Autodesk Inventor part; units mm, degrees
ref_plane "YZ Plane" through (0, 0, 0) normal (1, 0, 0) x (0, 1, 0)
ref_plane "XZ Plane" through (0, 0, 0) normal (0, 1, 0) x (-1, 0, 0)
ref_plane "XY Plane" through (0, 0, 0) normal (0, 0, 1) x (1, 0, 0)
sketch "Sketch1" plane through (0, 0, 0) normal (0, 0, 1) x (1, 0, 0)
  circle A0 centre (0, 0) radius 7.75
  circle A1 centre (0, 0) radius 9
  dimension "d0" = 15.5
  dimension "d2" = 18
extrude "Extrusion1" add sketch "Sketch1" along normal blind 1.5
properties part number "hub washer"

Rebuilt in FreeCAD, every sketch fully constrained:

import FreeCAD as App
import Part
import Sketcher
Q = App.Units.Quantity

doc = App.newDocument("Part")
params = doc.addObject("Spreadsheet::Sheet", "Params")
for row, (alias, value) in enumerate([
    ("sketch1_diameter", "18 mm"),
    ("sketch1_diameter2", "15.5 mm"),
    ("pad1_length", "1.5 mm"),
], start=1):
    params.set(f"A{row}", alias)
    params.set(f"B{row}", "=" + value)
    params.setAlias(f"B{row}", alias)

body = doc.addObject("PartDesign::Body", "Body")

sketch1 = body.newObject("Sketcher::SketchObject", "Sketch")
sketch1.AttachmentSupport = (doc.getObject("XY_Plane"), [""])
sketch1.MapMode = "FlatFace"
sketch1.addGeometry([
    Part.Circle(App.Vector(0, 0, 0), App.Vector(0, 0, 1), 9),
    Part.Circle(App.Vector(0, 0, 0), App.Vector(0, 0, 1), 8),
], False)
sketch1.addConstraint([
    Sketcher.Constraint("Coincident", 0, 3, -1, 1),
    Sketcher.Constraint("Coincident", 1, 3, -1, 1),
    Sketcher.Constraint("Diameter", 0, Q("18 mm")),
    Sketcher.Constraint("Diameter", 1, Q("15.5 mm")),
])
sketch1.setExpression("Constraints[2]", "Params.sketch1_diameter")
sketch1.setExpression("Constraints[3]", "Params.sketch1_diameter2")
pad1 = body.newObject("PartDesign::Pad", "Pad")
pad1.Profile = sketch1
pad1.setExpression("Length", "Params.pad1_length")

doc.recompute()
